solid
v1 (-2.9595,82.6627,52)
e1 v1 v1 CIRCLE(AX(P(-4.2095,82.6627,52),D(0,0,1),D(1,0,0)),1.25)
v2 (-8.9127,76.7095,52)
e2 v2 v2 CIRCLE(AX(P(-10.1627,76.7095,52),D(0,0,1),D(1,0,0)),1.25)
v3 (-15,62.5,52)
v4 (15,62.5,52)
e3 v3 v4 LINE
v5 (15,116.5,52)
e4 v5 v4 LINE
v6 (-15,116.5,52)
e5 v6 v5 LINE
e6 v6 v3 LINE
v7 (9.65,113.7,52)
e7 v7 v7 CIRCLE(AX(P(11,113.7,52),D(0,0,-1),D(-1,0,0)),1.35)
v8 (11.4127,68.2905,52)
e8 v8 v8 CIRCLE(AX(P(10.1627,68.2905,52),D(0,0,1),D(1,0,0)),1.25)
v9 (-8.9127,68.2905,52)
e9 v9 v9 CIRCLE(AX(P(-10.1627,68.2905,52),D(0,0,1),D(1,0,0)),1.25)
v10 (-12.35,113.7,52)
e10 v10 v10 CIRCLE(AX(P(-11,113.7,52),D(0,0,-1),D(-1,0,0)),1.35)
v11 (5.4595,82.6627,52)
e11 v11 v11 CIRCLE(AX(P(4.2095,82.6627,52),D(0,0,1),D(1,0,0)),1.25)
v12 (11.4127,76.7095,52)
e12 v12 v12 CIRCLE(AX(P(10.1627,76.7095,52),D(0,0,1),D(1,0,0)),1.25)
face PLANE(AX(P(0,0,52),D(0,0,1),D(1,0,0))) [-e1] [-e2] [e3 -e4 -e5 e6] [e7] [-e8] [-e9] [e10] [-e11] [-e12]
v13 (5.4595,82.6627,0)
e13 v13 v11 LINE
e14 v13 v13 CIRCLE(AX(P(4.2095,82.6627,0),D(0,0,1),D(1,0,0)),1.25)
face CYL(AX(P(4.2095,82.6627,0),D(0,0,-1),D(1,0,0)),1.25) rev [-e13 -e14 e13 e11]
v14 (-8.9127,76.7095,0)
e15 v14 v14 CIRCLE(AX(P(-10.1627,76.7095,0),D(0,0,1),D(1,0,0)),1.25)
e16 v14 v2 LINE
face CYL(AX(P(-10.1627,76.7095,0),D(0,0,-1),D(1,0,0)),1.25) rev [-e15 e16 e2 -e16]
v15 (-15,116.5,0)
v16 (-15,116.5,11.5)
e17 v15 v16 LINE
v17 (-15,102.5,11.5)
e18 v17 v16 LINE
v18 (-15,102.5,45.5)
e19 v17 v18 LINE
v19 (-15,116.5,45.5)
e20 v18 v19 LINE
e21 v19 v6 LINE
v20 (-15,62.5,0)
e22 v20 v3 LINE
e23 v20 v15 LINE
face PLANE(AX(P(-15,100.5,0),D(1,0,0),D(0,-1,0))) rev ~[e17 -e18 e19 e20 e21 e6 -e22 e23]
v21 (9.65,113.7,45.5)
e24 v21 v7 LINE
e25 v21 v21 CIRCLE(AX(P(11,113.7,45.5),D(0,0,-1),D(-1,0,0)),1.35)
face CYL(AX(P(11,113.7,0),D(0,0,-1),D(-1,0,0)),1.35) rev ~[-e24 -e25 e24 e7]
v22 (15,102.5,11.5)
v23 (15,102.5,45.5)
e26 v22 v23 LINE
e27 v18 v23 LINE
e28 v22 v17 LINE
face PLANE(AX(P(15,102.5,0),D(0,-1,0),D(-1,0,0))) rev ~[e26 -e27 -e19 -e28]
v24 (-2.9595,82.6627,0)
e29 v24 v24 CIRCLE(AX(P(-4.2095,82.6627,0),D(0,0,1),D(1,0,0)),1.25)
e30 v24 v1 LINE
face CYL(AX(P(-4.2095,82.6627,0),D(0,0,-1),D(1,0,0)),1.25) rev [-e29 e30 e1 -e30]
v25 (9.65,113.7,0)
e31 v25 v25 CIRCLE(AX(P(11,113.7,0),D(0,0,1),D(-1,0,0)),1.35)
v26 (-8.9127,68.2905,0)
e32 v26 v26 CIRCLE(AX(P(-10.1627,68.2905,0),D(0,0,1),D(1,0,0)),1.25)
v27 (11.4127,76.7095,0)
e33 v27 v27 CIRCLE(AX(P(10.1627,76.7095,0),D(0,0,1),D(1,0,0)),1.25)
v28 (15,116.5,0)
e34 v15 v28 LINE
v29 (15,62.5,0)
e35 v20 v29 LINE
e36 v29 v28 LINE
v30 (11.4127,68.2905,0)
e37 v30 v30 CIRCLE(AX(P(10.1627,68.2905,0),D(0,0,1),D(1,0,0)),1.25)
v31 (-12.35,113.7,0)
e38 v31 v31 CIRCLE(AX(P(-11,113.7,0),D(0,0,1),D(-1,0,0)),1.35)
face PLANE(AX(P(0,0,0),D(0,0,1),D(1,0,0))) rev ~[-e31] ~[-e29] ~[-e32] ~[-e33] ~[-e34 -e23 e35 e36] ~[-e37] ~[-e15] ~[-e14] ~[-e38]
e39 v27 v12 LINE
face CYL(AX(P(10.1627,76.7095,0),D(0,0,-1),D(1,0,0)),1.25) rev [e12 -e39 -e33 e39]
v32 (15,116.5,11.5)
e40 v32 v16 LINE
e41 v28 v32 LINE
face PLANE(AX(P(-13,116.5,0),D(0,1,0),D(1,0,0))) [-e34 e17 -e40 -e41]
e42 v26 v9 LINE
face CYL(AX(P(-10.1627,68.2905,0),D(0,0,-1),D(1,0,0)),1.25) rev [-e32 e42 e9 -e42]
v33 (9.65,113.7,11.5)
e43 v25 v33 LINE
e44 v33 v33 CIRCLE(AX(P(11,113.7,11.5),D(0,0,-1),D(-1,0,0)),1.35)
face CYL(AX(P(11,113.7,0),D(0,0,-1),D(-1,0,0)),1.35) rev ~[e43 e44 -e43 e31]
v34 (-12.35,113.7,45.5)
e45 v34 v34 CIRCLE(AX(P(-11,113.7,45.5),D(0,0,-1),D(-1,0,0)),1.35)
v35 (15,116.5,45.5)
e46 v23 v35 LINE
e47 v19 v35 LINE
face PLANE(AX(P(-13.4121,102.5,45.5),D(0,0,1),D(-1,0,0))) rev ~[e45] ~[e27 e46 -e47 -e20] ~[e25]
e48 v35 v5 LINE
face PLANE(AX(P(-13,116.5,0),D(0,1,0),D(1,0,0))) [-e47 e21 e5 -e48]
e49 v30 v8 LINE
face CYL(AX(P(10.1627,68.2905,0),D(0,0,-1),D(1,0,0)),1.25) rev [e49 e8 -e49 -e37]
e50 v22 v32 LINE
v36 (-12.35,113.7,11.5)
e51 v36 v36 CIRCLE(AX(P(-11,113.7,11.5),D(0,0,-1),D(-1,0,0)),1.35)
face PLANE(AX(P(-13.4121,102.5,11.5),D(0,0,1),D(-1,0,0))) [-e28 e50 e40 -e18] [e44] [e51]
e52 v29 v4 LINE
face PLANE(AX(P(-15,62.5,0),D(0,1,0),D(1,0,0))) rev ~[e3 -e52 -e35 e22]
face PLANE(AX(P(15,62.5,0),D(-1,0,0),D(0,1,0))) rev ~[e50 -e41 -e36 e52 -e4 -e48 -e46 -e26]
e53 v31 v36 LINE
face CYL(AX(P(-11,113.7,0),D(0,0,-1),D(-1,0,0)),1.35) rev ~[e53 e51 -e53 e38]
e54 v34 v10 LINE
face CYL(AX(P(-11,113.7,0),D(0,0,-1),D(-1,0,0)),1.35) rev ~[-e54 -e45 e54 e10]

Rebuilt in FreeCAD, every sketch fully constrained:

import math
import FreeCAD as App
import Part
import Sketcher
from FreeCAD import Vector


def add_polygon(sketch, points):
    """Adds a closed chain of lines whose ends are joined by coincident constraints."""
    first, n = sketch.GeometryCount, len(points)
    for a, b in zip(points, points[1:] + points[:1]):
        sketch.addGeometry(Part.LineSegment(App.Vector(*a, 0), App.Vector(*b, 0)), False)
    for i in range(n):
        sketch.addConstraint(Sketcher.Constraint("Coincident", first + i, 2, first + (i + 1) % n, 1))

doc = App.newDocument("Part")
body = doc.addObject("PartDesign::Body", "Body")

# Sketch on XY plane
sketch1 = body.newObject("Sketcher::SketchObject", "Sketch")
sketch1.AttachmentSupport = (doc.getObject("XY_Plane"), [""])
sketch1.MapMode = "FlatFace"
sketch1.addGeometry(Part.LineSegment(Vector(15, 62.5, 0), Vector(15, 100.5, 0)), False)
sketch1.addGeometry(Part.ArcOfCircle(Part.Circle(Vector(13, 100.5, 0), Vector(0, 0, 1), 2), math.radians(0), math.radians(90)), False)
sketch1.addGeometry(Part.LineSegment(Vector(13, 102.5, 0), Vector(-13, 102.5, 0)), False)
sketch1.addGeometry(Part.ArcOfCircle(Part.Circle(Vector(-13, 100.5, 0), Vector(0, 0, 1), 2), math.radians(90), math.radians(180)), False)
sketch1.addGeometry(Part.LineSegment(Vector(-15, 100.5, 0), Vector(-15, 62.5, 0)), False)
sketch1.addGeometry(Part.LineSegment(Vector(-15, 62.5, 0), Vector(15, 62.5, 0)), False)
sketch1.addGeometry(Part.Circle(Vector(-10.2, 68.3, 0), Vector(0, 0, 1), 1.2), False)
sketch1.addGeometry(Part.Circle(Vector(-10.2, 76.7, 0), Vector(0, 0, 1), 1.2), False)
sketch1.addGeometry(Part.Circle(Vector(-4.2, 82.7, 0), Vector(0, 0, 1), 1.2), False)
sketch1.addGeometry(Part.Circle(Vector(4.2, 82.7, 0), Vector(0, 0, 1), 1.2), False)
sketch1.addGeometry(Part.Circle(Vector(10.2, 68.3, 0), Vector(0, 0, 1), 1.2), False)
sketch1.addGeometry(Part.Circle(Vector(10.2, 76.7, 0), Vector(0, 0, 1), 1.2), False)
sketch1.addConstraint(Sketcher.Constraint("Tangent", 0, 2, 1, 1))
sketch1.addConstraint(Sketcher.Constraint("Tangent", 1, 2, 2, 1))
sketch1.addConstraint(Sketcher.Constraint("Tangent", 2, 2, 3, 1))
sketch1.addConstraint(Sketcher.Constraint("Tangent", 3, 2, 4, 1))
sketch1.addConstraint(Sketcher.Constraint("Coincident", 4, 2, 5, 1))
sketch1.addConstraint(Sketcher.Constraint("Coincident", 5, 2, 0, 1))
sketch1.addConstraint(Sketcher.Constraint("Vertical", 0))
sketch1.addConstraint(Sketcher.Constraint("Horizontal", 2))
sketch1.addConstraint(Sketcher.Constraint("Vertical", 4))
sketch1.addConstraint(Sketcher.Constraint("Horizontal", 5))
sketch1.addConstraint(Sketcher.Constraint("Equal", 1, 3))
sketch1.addConstraint(Sketcher.Constraint("Equal", 6, 7))
sketch1.addConstraint(Sketcher.Constraint("Equal", 7, 8))
sketch1.addConstraint(Sketcher.Constraint("Equal", 8, 9))
sketch1.addConstraint(Sketcher.Constraint("Equal", 9, 10))
sketch1.addConstraint(Sketcher.Constraint("Equal", 10, 11))
sketch1.addConstraint(Sketcher.Constraint("Symmetric", 8, 3, 9, 3, -2))
sketch1.addConstraint(Sketcher.Constraint("Symmetric", 6, 3, 10, 3, -2))
sketch1.addConstraint(Sketcher.Constraint("Symmetric", 7, 3, 11, 3, -2))
sketch1.addConstraint(Sketcher.Constraint("Vertical", 6, 3, 7, 3))
sketch1.addConstraint(Sketcher.Constraint("Radius", 1, 2.0))
sketch1.addConstraint(Sketcher.Constraint("Diameter", 6, 2.5))
sketch1.addConstraint(Sketcher.Constraint("DistanceX", 2, 2, 2, 1, 26.0))
sketch1.addConstraint(Sketcher.Constraint("DistanceY", 0, 1, 0, 2, 38.0))
sketch1.addConstraint(Sketcher.Constraint("DistanceX", -1, 1, 1, 3, 13.0))
sketch1.addConstraint(Sketcher.Constraint("DistanceY", -1, 1, 1, 3, 100.5))
sketch1.addConstraint(Sketcher.Constraint("DistanceY", 6, 3, 7, 3, 8.419))
sketch1.addConstraint(Sketcher.Constraint("DistanceX", 8, 3, 9, 3, 8.419))
sketch1.addConstraint(Sketcher.Constraint("DistanceX", 6, 3, -1, 1, 10.1627))
sketch1.addConstraint(Sketcher.Constraint("DistanceY", -1, 1, 6, 3, 68.2905))
sketch1.addConstraint(Sketcher.Constraint("DistanceY", -1, 1, 8, 3, 82.6627))
pad1 = body.newObject("PartDesign::Pad", "Pad")
pad1.Profile = sketch1
pad1.Length = 52

# Sketch on XZ plane
sketch2 = body.newObject("Sketcher::SketchObject", "Sketch001")
sketch2.AttachmentSupport = (doc.getObject("XZ_Plane"), [""])
sketch2.MapMode = "FlatFace"
sketch2.AttachmentOffset = App.Placement(Vector(0, 0, -102.5), App.Rotation())
add_polygon(sketch2, [(-15, 12), (15, 12), (15, 0), (-15, 0)])  # lines 0-3
add_polygon(sketch2, [(15, 46), (-15, 46), (-15, 52), (15, 52)])  # lines 4-7
sketch2.addConstraint(Sketcher.Constraint("Horizontal", 0))
sketch2.addConstraint(Sketcher.Constraint("Vertical", 1))
sketch2.addConstraint(Sketcher.Constraint("Horizontal", 2))
sketch2.addConstraint(Sketcher.Constraint("Vertical", 3))
sketch2.addConstraint(Sketcher.Constraint("Horizontal", 4))
sketch2.addConstraint(Sketcher.Constraint("Vertical", 5))
sketch2.addConstraint(Sketcher.Constraint("Horizontal", 6))
sketch2.addConstraint(Sketcher.Constraint("Vertical", 7))
sketch2.addConstraint(Sketcher.Constraint("Symmetric", 1, 2, 2, 2, -1, 1))
sketch2.addConstraint(Sketcher.Constraint("Vertical", 3, 2, 4, 2))
sketch2.addConstraint(Sketcher.Constraint("Vertical", 1, 2, 6, 2))
sketch2.addConstraint(Sketcher.Constraint("DistanceX", 0, 1, 0, 2, 30.0))
sketch2.addConstraint(Sketcher.Constraint("DistanceY", 1, 2, 1, 1, 11.5))
sketch2.addConstraint(Sketcher.Constraint("DistanceY", 5, 1, 5, 2, 6.5))
sketch2.addConstraint(Sketcher.Constraint("DistanceY", -1, 1, 5, 2, 52.0))
pad2 = body.newObject("PartDesign::Pad", "Pad001")
pad2.Profile = sketch2
pad2.Length = 14
pad2.Reversed = True

# Sketch on XY plane
sketch3 = body.newObject("Sketcher::SketchObject", "Sketch002")
sketch3.AttachmentSupport = (doc.getObject("XY_Plane"), [""])
sketch3.MapMode = "FlatFace"
add_polygon(sketch3, [(15, 102.5), (15, 100.5), (-15, 100.5), (-15, 102.5)])  # lines 0-3
sketch3.addConstraint(Sketcher.Constraint("Vertical", 0))
sketch3.addConstraint(Sketcher.Constraint("Horizontal", 1))
sketch3.addConstraint(Sketcher.Constraint("Vertical", 2))
sketch3.addConstraint(Sketcher.Constraint("Horizontal", 3))
sketch3.addConstraint(Sketcher.Constraint("DistanceX", 1, 2, 1, 1, 30.0))
sketch3.addConstraint(Sketcher.Constraint("DistanceY", 0, 2, 0, 1, 2.0))
sketch3.addConstraint(Sketcher.Constraint("DistanceX", -1, 1, 0, 2, 15.0))
sketch3.addConstraint(Sketcher.Constraint("DistanceY", -1, 1, 0, 2, 100.5))
pad3 = body.newObject("PartDesign::Pad", "Pad002")
pad3.Profile = sketch3
pad3.Length = 52

# Sketch on XY plane
sketch4 = body.newObject("Sketcher::SketchObject", "Sketch003")
sketch4.AttachmentSupport = (doc.getObject("XY_Plane"), [""])
sketch4.MapMode = "FlatFace"
sketch4.addGeometry(Part.Circle(Vector(-11, 113.7, 0), Vector(0, 0, 1), 1.3), False)
sketch4.addGeometry(Part.Circle(Vector(11, 113.7, 0), Vector(0, 0, 1), 1.3), False)
sketch4.addConstraint(Sketcher.Constraint("Equal", 0, 1))
sketch4.addConstraint(Sketcher.Constraint("Symmetric", 0, 3, 1, 3, -2))
sketch4.addConstraint(Sketcher.Constraint("Diameter", 0, 2.7))
sketch4.addConstraint(Sketcher.Constraint("DistanceX", 0, 3, -1, 1, 11.0))
sketch4.addConstraint(Sketcher.Constraint("DistanceY", -1, 1, 0, 3, 113.7))
pocket1 = body.newObject("PartDesign::Pocket", "Pocket")
pocket1.Profile = sketch4
pocket1.Type = "ThroughAll"
pocket1.Reversed = True

doc.recompute()
